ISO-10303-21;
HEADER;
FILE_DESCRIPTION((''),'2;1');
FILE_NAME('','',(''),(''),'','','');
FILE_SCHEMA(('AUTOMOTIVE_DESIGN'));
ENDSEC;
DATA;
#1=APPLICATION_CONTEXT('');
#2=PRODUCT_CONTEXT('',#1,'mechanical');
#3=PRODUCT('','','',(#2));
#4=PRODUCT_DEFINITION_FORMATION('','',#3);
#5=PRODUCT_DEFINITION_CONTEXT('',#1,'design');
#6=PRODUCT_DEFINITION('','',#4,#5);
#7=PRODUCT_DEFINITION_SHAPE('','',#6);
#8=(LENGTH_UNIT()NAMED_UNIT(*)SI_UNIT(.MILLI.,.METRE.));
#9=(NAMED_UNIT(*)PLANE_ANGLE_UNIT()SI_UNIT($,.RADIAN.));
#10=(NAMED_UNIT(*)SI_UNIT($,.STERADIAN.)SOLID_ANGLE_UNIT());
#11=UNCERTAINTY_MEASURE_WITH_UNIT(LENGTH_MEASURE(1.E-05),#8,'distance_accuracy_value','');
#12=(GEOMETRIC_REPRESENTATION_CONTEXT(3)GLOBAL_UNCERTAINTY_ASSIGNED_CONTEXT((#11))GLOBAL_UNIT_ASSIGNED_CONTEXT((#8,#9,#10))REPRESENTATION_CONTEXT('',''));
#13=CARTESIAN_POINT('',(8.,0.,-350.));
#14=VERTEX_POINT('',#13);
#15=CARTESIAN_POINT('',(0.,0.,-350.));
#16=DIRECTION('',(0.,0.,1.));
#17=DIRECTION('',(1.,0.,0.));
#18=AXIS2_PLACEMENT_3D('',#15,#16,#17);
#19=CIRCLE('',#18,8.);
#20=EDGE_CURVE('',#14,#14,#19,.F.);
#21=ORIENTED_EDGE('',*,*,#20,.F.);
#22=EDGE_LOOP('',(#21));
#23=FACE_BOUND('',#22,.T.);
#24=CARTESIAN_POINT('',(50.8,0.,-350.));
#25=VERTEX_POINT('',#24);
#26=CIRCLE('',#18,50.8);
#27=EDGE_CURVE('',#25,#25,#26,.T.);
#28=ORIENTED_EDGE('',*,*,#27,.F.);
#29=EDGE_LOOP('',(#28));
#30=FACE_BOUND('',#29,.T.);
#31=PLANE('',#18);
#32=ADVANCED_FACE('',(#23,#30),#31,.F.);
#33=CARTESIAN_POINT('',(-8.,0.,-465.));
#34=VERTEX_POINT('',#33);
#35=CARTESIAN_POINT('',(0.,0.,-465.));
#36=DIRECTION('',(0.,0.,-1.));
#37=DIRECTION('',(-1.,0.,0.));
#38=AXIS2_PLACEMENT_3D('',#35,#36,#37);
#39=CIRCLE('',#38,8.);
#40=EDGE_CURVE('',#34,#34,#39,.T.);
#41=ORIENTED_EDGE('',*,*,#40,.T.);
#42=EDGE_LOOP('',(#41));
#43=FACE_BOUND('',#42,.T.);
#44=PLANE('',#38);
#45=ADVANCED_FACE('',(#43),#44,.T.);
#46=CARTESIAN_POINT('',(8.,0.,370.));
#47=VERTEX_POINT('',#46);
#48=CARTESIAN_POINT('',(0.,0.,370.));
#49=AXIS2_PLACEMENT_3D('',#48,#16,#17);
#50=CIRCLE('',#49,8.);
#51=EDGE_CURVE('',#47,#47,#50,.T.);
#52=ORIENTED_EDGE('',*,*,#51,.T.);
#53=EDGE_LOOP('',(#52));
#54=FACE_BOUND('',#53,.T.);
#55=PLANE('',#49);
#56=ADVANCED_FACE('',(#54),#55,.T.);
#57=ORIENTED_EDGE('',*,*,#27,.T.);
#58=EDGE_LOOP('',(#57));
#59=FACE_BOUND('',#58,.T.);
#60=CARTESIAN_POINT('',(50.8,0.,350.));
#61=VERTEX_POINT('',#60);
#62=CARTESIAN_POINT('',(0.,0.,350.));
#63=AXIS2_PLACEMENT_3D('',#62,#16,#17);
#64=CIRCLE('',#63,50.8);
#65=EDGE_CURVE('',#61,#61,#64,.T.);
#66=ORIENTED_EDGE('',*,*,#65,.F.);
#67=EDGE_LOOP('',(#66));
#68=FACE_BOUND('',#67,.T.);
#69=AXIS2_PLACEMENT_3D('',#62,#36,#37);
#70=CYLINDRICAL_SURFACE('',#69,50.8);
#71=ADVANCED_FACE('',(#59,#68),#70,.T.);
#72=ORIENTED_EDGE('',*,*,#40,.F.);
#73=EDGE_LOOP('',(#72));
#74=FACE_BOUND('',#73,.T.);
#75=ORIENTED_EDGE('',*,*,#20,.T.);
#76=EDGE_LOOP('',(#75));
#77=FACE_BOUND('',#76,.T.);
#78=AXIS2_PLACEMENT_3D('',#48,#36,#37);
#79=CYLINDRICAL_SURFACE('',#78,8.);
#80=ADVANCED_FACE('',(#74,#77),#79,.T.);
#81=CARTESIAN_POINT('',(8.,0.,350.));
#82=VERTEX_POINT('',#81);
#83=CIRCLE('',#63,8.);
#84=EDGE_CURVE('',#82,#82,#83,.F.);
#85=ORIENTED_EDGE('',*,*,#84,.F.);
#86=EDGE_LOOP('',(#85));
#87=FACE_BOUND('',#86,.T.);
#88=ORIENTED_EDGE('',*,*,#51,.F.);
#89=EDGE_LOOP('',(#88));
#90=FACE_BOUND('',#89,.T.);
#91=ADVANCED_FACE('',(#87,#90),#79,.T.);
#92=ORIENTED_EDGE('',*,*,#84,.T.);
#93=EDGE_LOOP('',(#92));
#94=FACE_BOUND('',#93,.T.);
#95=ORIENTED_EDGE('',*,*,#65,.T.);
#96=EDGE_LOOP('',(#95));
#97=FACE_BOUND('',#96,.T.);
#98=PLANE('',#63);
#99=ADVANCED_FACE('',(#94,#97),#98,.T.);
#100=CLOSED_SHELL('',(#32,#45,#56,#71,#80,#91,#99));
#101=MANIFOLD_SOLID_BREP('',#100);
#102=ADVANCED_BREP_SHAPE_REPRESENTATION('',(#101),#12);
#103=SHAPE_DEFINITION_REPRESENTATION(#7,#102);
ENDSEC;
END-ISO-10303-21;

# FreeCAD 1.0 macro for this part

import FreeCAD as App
import Part
import Sketcher

V = App.Vector
Q = App.Units.Quantity

doc = App.newDocument("Part")
body = doc.addObject("PartDesign::Body", "Body")

# Sketch on XY plane
sketch1 = doc.addObject("Sketcher::SketchObject", "Sketch")
body.addObject(sketch1)
sketch1.AttachmentSupport = (doc.XY_Plane, [""])
sketch1.MapMode = "FlatFace"
sketch1.addGeometry(Part.Circle(V(0, 0, 0), V(0, 0, 1), 51), False)
sketch1.addConstraint(Sketcher.Constraint("Coincident", 0, 3, -1, 1))
sketch1.addConstraint(Sketcher.Constraint("Diameter", 0, Q("101.6 mm")))
pad1 = doc.addObject("PartDesign::Pad", "Pad")
body.addObject(pad1)
pad1.Profile = sketch1
pad1.Length = 700
pad1.Midplane = True

# Sketch on XY plane
sketch2 = doc.addObject("Sketcher::SketchObject", "Sketch001")
body.addObject(sketch2)
sketch2.AttachmentSupport = (doc.XY_Plane, [""])
sketch2.MapMode = "FlatFace"
sketch2.addGeometry(Part.Circle(V(0, 0, 0), V(0, 0, 1), 8), False)
sketch2.addConstraint(Sketcher.Constraint("Coincident", 0, 3, -1, 1))
sketch2.addConstraint(Sketcher.Constraint("Diameter", 0, Q("16 mm")))
pad2 = doc.addObject("PartDesign::Pad", "Pad001")
body.addObject(pad2)
pad2.Profile = sketch2
pad2.Length = 740
pad2.Midplane = True

# Sketch on XY plane
sketch3 = doc.addObject("Sketcher::SketchObject", "Sketch002")
body.addObject(sketch3)
sketch3.AttachmentSupport = (doc.XY_Plane, [""])
sketch3.MapMode = "FlatFace"
sketch3.AttachmentOffset = App.Placement(V(0, 0, -370), App.Rotation())
sketch3.addGeometry(Part.Circle(V(0, 0, 0), V(0, 0, 1), 8), False)
sketch3.addConstraint(Sketcher.Constraint("Coincident", 0, 3, -1, 1))
sketch3.addConstraint(Sketcher.Constraint("Diameter", 0, Q("16 mm")))
pad3 = doc.addObject("PartDesign::Pad", "Pad002")
body.addObject(pad3)
pad3.Profile = sketch3
pad3.Length = 95
pad3.Reversed = True

doc.recompute()
